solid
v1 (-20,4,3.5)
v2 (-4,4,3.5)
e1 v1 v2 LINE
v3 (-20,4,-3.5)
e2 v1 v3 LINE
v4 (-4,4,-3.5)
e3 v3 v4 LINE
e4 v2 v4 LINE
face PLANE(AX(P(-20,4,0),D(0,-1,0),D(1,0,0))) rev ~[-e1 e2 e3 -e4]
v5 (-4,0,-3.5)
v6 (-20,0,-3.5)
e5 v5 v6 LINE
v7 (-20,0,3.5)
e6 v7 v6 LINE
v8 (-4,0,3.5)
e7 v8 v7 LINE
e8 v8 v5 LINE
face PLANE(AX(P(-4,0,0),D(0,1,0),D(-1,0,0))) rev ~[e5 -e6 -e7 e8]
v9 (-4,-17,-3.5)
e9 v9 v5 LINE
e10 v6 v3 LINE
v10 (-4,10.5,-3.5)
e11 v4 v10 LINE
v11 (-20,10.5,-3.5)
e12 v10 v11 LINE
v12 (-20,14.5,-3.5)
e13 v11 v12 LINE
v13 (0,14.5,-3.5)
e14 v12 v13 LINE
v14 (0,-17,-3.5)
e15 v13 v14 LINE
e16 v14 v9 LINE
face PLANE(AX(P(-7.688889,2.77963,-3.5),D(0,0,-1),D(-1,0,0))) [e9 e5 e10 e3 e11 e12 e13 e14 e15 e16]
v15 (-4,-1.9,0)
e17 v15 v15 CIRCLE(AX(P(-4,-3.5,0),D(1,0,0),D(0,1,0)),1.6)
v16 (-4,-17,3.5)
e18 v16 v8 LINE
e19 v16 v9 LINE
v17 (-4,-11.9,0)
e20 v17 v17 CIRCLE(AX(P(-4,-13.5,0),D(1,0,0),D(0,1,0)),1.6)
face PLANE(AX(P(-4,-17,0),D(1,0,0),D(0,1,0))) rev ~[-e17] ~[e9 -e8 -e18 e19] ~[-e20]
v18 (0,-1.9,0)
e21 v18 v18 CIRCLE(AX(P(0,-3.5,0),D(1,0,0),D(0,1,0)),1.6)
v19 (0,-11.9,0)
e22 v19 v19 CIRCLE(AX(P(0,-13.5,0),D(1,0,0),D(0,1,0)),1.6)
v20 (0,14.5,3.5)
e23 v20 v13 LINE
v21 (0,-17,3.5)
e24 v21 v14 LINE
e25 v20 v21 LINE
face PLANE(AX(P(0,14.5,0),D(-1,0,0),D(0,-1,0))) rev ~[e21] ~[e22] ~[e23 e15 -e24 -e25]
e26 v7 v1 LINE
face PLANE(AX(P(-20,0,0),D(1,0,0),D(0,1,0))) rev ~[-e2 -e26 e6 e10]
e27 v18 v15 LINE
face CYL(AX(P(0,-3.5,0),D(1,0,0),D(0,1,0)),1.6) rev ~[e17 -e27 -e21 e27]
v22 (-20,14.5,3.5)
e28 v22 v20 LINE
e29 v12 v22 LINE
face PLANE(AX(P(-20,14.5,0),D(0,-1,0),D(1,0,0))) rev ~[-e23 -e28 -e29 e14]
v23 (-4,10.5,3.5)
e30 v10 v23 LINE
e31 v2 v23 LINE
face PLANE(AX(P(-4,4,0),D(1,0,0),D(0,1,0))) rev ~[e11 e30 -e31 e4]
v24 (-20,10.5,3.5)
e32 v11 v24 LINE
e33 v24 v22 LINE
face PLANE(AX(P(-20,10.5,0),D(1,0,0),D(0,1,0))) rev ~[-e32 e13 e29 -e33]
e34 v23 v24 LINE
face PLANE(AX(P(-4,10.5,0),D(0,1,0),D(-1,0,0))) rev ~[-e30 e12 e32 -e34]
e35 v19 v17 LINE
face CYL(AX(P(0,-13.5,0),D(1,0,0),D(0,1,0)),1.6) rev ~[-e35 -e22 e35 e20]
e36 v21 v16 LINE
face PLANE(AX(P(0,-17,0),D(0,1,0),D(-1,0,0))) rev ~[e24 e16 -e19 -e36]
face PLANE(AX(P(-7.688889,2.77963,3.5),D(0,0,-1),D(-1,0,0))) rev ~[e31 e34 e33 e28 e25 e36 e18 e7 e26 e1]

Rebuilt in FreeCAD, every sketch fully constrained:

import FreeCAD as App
import Part
import Sketcher

V = App.Vector
Q = App.Units.Quantity

doc = App.newDocument("Part")
body = doc.addObject("PartDesign::Body", "Body")

# Sketch on XY plane
sketch1 = doc.addObject("Sketcher::SketchObject", "Sketch")
body.addObject(sketch1)
sketch1.AttachmentSupport = (doc.XY_Plane, [""])
sketch1.MapMode = "FlatFace"
sketch1.addGeometry([
    Part.LineSegment(V(0, 14.5, 0), V(-20, 14.5, 0)),  # 0
    Part.LineSegment(V(-20, 14.5, 0), V(-20, 10.5, 0)),  # 1
    Part.LineSegment(V(-20, 10.5, 0), V(-4, 10.5, 0)),  # 2
    Part.LineSegment(V(-4, 10.5, 0), V(-4, 4, 0)),  # 3
    Part.LineSegment(V(-4, 4, 0), V(-20, 4, 0)),  # 4
    Part.LineSegment(V(-20, 4, 0), V(-20, 0, 0)),  # 5
    Part.LineSegment(V(-20, 0, 0), V(-4, 0, 0)),  # 6
    Part.LineSegment(V(-4, 0, 0), V(-4, -17, 0)),  # 7
    Part.LineSegment(V(-4, -17, 0), V(0, -17, 0)),  # 8
    Part.LineSegment(V(0, -17, 0), V(0, 14.5, 0)),  # 9
], False)
sketch1.addConstraint([
    Sketcher.Constraint("Coincident", 0, 2, 1, 1),
    Sketcher.Constraint("Coincident", 1, 2, 2, 1),
    Sketcher.Constraint("Coincident", 2, 2, 3, 1),
    Sketcher.Constraint("Coincident", 3, 2, 4, 1),
    Sketcher.Constraint("Coincident", 4, 2, 5, 1),
    Sketcher.Constraint("Coincident", 5, 2, 6, 1),
    Sketcher.Constraint("Coincident", 6, 2, 7, 1),
    Sketcher.Constraint("Coincident", 7, 2, 8, 1),
    Sketcher.Constraint("Coincident", 8, 2, 9, 1),
    Sketcher.Constraint("Coincident", 9, 2, 0, 1),
    Sketcher.Constraint("Horizontal", 0),
    Sketcher.Constraint("Vertical", 1),
    Sketcher.Constraint("Horizontal", 2),
    Sketcher.Constraint("Vertical", 3),
    Sketcher.Constraint("Horizontal", 4),
    Sketcher.Constraint("Vertical", 5),
    Sketcher.Constraint("Horizontal", 6),
    Sketcher.Constraint("Vertical", 7),
    Sketcher.Constraint("Horizontal", 8),
    Sketcher.Constraint("Vertical", 9),
    Sketcher.Constraint("PointOnObject", 5, 2, -1),
    Sketcher.Constraint("PointOnObject", 8, 2, -2),
    Sketcher.Constraint("Vertical", 1, 2, 4, 2),
    Sketcher.Constraint("Vertical", 3, 2, 6, 2),
    Sketcher.Constraint("Equal", 8, 1),
    Sketcher.Constraint("Equal", 1, 5),
    Sketcher.Constraint("DistanceX", 0, 2, 0, 1, Q("20 mm")),
    Sketcher.Constraint("DistanceX", 2, 1, 2, 2, Q("16 mm")),
    Sketcher.Constraint("DistanceY", 7, 2, 7, 1, Q("17 mm")),
    Sketcher.Constraint("DistanceY", 3, 2, 3, 1, Q("6.5 mm")),
])
pad1 = doc.addObject("PartDesign::Pad", "Pad")
body.addObject(pad1)
pad1.Profile = sketch1
pad1.Length = 7
pad1.Midplane = True

# Sketch on YZ plane
sketch2 = doc.addObject("Sketcher::SketchObject", "Sketch001")
body.addObject(sketch2)
sketch2.AttachmentSupport = (doc.YZ_Plane, [""])
sketch2.MapMode = "FlatFace"
sketch2.addGeometry([
    Part.Circle(V(-3.5, 0, 0), V(0, 0, 1), 1.6),
    Part.Circle(V(-13.5, 0, 0), V(0, 0, 1), 1.6),
], False)
sketch2.addConstraint([
    Sketcher.Constraint("Equal", 0, 1),
    Sketcher.Constraint("PointOnObject", 0, 3, -1),
    Sketcher.Constraint("PointOnObject", 1, 3, -1),
    Sketcher.Constraint("Diameter", 0, Q("3.2 mm")),
    Sketcher.Constraint("DistanceX", 1, 3, 0, 3, Q("10 mm")),
    Sketcher.Constraint("DistanceX", 0, 3, -1, 1, Q("3.5 mm")),
])
pocket1 = doc.addObject("PartDesign::Pocket", "Pocket")
body.addObject(pocket1)
pocket1.Profile = sketch2
pocket1.Type = "ThroughAll"

doc.recompute()
